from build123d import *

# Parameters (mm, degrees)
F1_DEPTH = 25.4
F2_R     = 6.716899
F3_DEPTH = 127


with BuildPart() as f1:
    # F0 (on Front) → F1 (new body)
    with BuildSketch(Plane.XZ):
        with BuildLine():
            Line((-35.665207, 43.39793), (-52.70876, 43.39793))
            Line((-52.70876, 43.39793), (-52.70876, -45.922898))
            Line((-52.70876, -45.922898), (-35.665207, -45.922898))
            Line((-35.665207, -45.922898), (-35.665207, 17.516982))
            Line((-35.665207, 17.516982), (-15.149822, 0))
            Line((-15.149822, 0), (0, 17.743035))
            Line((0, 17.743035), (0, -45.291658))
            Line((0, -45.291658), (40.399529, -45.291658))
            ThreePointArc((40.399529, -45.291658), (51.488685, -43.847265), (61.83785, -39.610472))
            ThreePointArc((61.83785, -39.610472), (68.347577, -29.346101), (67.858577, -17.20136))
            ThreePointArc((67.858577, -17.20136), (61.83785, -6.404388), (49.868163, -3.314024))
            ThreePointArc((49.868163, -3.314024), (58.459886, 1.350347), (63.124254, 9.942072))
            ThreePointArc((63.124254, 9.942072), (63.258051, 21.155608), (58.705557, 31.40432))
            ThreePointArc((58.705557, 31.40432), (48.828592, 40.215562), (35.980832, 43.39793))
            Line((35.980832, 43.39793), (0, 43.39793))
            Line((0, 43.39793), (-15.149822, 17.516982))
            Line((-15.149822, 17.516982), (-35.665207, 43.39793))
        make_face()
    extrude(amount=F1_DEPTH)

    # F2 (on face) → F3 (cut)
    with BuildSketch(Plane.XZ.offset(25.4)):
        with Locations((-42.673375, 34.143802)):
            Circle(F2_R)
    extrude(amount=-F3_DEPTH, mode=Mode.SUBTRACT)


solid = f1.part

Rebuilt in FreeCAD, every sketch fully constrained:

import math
import FreeCAD as App
import Part
import Sketcher

V = App.Vector
Q = App.Units.Quantity

doc = App.newDocument("Part")
body = doc.addObject("PartDesign::Body", "Body")

sketch1 = body.newObject("Sketcher::SketchObject", "Sketch")
sketch1.AttachmentSupport = (doc.getObject("XZ_Plane"), [""])
sketch1.MapMode = "FlatFace"
sketch1.addGeometry(Part.LineSegment(V(-35.665207, 43.39793, 0), V(-52.70876, 43.39793, 0)), False)
sketch1.addGeometry(Part.LineSegment(V(-52.70876, 43.39793, 0), V(-52.70876, -45.922898, 0)), False)
sketch1.addGeometry(Part.LineSegment(V(-52.70876, -45.922898, 0), V(-35.665207, -45.922898, 0)), False)
sketch1.addGeometry(Part.LineSegment(V(-35.665207, -45.922898, 0), V(-35.665207, 17.516982, 0)), False)
sketch1.addGeometry(Part.LineSegment(V(-35.665207, 17.516982, 0), V(-15.149822, 0, 0)), False)
sketch1.addGeometry(Part.LineSegment(V(-15.149822, 0, 0), V(0, 17.743035, 0)), False)
sketch1.addGeometry(Part.LineSegment(V(0, 17.743035, 0), V(0, -45.291658, 0)), False)
sketch1.addGeometry(Part.LineSegment(V(0, -45.291658, 0), V(40.399529, -45.291658, 0)), False)
sketch1.addGeometry(Part.ArcOfCircle(Part.Circle(V(40.399529, -2.001625, 0), V(0, 0, 1), 43.290033), math.radians(-90.000001), math.radians(-60.315391)), False)
sketch1.addGeometry(Part.ArcOfCircle(Part.Circle(V(48.660051, -24.056591, 0), V(0, 0, 1), 20.38572), math.radians(-49.727547), math.radians(19.650157)), False)
sketch1.addGeometry(Part.ArcOfCircle(Part.Circle(V(52.245912, -18.830309, 0), V(0, 0, 1), 15.697413), math.radians(5.956409), math.radians(98.712353)), False)
sketch1.addGeometry(Part.ArcOfCircle(Part.Circle(V(46.292143, 13.518086, 0), V(0, 0, 1), 17.207784), math.radians(-78.005717), math.radians(-11.994262)), False)
sketch1.addGeometry(Part.ArcOfCircle(Part.Circle(V(37.513309, 15.855221, 0), V(0, 0, 1), 26.284708), math.radians(-13.000843), math.radians(36.268105)), False)
sketch1.addGeometry(Part.ArcOfCircle(Part.Circle(V(35.98083, 15.872444, 0), V(0, 0, 1), 27.525486), math.radians(34.351791), math.radians(89.999996)), False)
sketch1.addGeometry(Part.LineSegment(V(35.980832, 43.39793, 0), V(0, 43.39793, 0)), False)
sketch1.addGeometry(Part.LineSegment(V(0, 43.39793, 0), V(-15.149822, 17.516982, 0)), False)
sketch1.addGeometry(Part.LineSegment(V(-15.149822, 17.516982, 0), V(-35.665207, 43.39793, 0)), False)
sketch1.addConstraint(Sketcher.Constraint("Coincident", 0, 2, 1, 1))
sketch1.addConstraint(Sketcher.Constraint("Coincident", 1, 2, 2, 1))
sketch1.addConstraint(Sketcher.Constraint("Coincident", 2, 2, 3, 1))
sketch1.addConstraint(Sketcher.Constraint("Coincident", 3, 2, 4, 1))
sketch1.addConstraint(Sketcher.Constraint("Coincident", 4, 2, 5, 1))
sketch1.addConstraint(Sketcher.Constraint("Coincident", 5, 2, 6, 1))
sketch1.addConstraint(Sketcher.Constraint("Coincident", 6, 2, 7, 1))
sketch1.addConstraint(Sketcher.Constraint("Tangent", 7, 2, 8, 1))
sketch1.addConstraint(Sketcher.Constraint("Coincident", 8, 2, 9, 1))
sketch1.addConstraint(Sketcher.Constraint("Coincident", 9, 2, 10, 1))
sketch1.addConstraint(Sketcher.Constraint("Coincident", 10, 2, 11, 1))
sketch1.addConstraint(Sketcher.Constraint("Coincident", 11, 2, 12, 1))
sketch1.addConstraint(Sketcher.Constraint("Coincident", 12, 2, 13, 1))
sketch1.addConstraint(Sketcher.Constraint("Tangent", 13, 2, 14, 1))
sketch1.addConstraint(Sketcher.Constraint("Coincident", 14, 2, 15, 1))
sketch1.addConstraint(Sketcher.Constraint("Coincident", 15, 2, 16, 1))
sketch1.addConstraint(Sketcher.Constraint("Coincident", 16, 2, 0, 1))
sketch1.addConstraint(Sketcher.Constraint("Horizontal", 0))
sketch1.addConstraint(Sketcher.Constraint("Vertical", 1))
sketch1.addConstraint(Sketcher.Constraint("Horizontal", 2))
sketch1.addConstraint(Sketcher.Constraint("Vertical", 3))
sketch1.addConstraint(Sketcher.Constraint("Vertical", 6))
sketch1.addConstraint(Sketcher.Constraint("Horizontal", 7))
sketch1.addConstraint(Sketcher.Constraint("Horizontal", 14))
sketch1.addConstraint(Sketcher.Constraint("PointOnObject", 4, 2, -1))
sketch1.addConstraint(Sketcher.Constraint("PointOnObject", 5, 2, -2))
sketch1.addConstraint(Sketcher.Constraint("PointOnObject", 14, 2, -2))
sketch1.addConstraint(Sketcher.Constraint("Perpendicular", 4, 5))
sketch1.addConstraint(Sketcher.Constraint("Horizontal", 0, 2, 13, 2))
sketch1.addConstraint(Sketcher.Constraint("Horizontal", 3, 2, 15, 2))
sketch1.addConstraint(Sketcher.Constraint("Vertical", 4, 2, 15, 2))
sketch1.addConstraint(Sketcher.Constraint("Vertical", 3, 2, 16, 2))
sketch1.addConstraint(Sketcher.Constraint("Radius", 9, 20.38572))
sketch1.addConstraint(Sketcher.Constraint("Radius", 8, 43.290033))
sketch1.addConstraint(Sketcher.Constraint("Radius", 10, 15.697413))
sketch1.addConstraint(Sketcher.Constraint("Radius", 11, 17.207784))
sketch1.addConstraint(Sketcher.Constraint("Radius", 12, 26.284708))
sketch1.addConstraint(Sketcher.Constraint("Radius", 13, 27.525486))
sketch1.addConstraint(Sketcher.Constraint("DistanceX", 7, 1, 7, 2, 40.399529))
sketch1.addConstraint(Sketcher.Constraint("DistanceY", 1, 2, 1, 1, 89.320828))
sketch1.addConstraint(Sketcher.Constraint("DistanceY", 3, 1, 3, 2, 63.43988))
sketch1.addConstraint(Sketcher.Constraint("DistanceY", 1, 2, -1, 1, 45.922898))
sketch1.addConstraint(Sketcher.Constraint("DistanceX", 13, 3, 8, 3, 4.418699))
sketch1.addConstraint(Sketcher.Constraint("DistanceX", 9, 3, 8, 2, 13.177799))
sketch1.addConstraint(Sketcher.Constraint("DistanceY", 10, 2, 8, 3, 1.312399))
sketch1.addConstraint(Sketcher.Constraint("DistanceY", 12, 3, 12, 2, 15.549099))
sketch1.addConstraint(Sketcher.Constraint("Distance", 4, 26.976391))
sketch1.addConstraint(Sketcher.Constraint("DistanceX", 0, 2, 0, 1, 17.043553))
sketch1.addConstraint(Sketcher.Constraint("DistanceY", 6, 2, 6, 1, 63.034693))
sketch1.addConstraint(Sketcher.Constraint("DistanceX", -1, 1, 9, 3, 48.660051))
sketch1.addConstraint(Sketcher.Constraint("DistanceY", 9, 3, -1, 1, 24.056591))
sketch1.addConstraint(Sketcher.Constraint("DistanceX", -1, 1, 10, 3, 52.245912))
sketch1.addConstraint(Sketcher.Constraint("DistanceY", 10, 3, -1, 1, 18.830309))
sketch1.addConstraint(Sketcher.Constraint("DistanceX", -1, 1, 12, 3, 37.513309))
sketch1.addConstraint(Sketcher.Constraint("DistanceY", 8, 3, 11, 3, 15.51971))
pad1 = body.newObject("PartDesign::Pad", "Pad")
pad1.Profile = sketch1
pad1.Length = Q("1 in")

sketch2 = body.newObject("Sketcher::SketchObject", "Sketch001")
sketch2.AttachmentSupport = (doc.getObject("XZ_Plane"), [""])
sketch2.MapMode = "FlatFace"
sketch2.AttachmentOffset = App.Placement(V(0, 0, 1 * 25.4), App.Rotation())
sketch2.addGeometry(Part.Circle(V(-42.673375, 34.143802, 0), V(0, 0, 1), 6.716899), False)
sketch2.addConstraint(Sketcher.Constraint("Diameter", 0, 13.433798))
sketch2.addConstraint(Sketcher.Constraint("DistanceX", 0, 3, -1, 1, 42.673375))
sketch2.addConstraint(Sketcher.Constraint("DistanceY", -1, 1, 0, 3, 34.143802))
pocket1 = body.newObject("PartDesign::Pocket", "Pocket")
pocket1.Profile = sketch2
pocket1.Length = Q("5 in")

doc.recompute()
